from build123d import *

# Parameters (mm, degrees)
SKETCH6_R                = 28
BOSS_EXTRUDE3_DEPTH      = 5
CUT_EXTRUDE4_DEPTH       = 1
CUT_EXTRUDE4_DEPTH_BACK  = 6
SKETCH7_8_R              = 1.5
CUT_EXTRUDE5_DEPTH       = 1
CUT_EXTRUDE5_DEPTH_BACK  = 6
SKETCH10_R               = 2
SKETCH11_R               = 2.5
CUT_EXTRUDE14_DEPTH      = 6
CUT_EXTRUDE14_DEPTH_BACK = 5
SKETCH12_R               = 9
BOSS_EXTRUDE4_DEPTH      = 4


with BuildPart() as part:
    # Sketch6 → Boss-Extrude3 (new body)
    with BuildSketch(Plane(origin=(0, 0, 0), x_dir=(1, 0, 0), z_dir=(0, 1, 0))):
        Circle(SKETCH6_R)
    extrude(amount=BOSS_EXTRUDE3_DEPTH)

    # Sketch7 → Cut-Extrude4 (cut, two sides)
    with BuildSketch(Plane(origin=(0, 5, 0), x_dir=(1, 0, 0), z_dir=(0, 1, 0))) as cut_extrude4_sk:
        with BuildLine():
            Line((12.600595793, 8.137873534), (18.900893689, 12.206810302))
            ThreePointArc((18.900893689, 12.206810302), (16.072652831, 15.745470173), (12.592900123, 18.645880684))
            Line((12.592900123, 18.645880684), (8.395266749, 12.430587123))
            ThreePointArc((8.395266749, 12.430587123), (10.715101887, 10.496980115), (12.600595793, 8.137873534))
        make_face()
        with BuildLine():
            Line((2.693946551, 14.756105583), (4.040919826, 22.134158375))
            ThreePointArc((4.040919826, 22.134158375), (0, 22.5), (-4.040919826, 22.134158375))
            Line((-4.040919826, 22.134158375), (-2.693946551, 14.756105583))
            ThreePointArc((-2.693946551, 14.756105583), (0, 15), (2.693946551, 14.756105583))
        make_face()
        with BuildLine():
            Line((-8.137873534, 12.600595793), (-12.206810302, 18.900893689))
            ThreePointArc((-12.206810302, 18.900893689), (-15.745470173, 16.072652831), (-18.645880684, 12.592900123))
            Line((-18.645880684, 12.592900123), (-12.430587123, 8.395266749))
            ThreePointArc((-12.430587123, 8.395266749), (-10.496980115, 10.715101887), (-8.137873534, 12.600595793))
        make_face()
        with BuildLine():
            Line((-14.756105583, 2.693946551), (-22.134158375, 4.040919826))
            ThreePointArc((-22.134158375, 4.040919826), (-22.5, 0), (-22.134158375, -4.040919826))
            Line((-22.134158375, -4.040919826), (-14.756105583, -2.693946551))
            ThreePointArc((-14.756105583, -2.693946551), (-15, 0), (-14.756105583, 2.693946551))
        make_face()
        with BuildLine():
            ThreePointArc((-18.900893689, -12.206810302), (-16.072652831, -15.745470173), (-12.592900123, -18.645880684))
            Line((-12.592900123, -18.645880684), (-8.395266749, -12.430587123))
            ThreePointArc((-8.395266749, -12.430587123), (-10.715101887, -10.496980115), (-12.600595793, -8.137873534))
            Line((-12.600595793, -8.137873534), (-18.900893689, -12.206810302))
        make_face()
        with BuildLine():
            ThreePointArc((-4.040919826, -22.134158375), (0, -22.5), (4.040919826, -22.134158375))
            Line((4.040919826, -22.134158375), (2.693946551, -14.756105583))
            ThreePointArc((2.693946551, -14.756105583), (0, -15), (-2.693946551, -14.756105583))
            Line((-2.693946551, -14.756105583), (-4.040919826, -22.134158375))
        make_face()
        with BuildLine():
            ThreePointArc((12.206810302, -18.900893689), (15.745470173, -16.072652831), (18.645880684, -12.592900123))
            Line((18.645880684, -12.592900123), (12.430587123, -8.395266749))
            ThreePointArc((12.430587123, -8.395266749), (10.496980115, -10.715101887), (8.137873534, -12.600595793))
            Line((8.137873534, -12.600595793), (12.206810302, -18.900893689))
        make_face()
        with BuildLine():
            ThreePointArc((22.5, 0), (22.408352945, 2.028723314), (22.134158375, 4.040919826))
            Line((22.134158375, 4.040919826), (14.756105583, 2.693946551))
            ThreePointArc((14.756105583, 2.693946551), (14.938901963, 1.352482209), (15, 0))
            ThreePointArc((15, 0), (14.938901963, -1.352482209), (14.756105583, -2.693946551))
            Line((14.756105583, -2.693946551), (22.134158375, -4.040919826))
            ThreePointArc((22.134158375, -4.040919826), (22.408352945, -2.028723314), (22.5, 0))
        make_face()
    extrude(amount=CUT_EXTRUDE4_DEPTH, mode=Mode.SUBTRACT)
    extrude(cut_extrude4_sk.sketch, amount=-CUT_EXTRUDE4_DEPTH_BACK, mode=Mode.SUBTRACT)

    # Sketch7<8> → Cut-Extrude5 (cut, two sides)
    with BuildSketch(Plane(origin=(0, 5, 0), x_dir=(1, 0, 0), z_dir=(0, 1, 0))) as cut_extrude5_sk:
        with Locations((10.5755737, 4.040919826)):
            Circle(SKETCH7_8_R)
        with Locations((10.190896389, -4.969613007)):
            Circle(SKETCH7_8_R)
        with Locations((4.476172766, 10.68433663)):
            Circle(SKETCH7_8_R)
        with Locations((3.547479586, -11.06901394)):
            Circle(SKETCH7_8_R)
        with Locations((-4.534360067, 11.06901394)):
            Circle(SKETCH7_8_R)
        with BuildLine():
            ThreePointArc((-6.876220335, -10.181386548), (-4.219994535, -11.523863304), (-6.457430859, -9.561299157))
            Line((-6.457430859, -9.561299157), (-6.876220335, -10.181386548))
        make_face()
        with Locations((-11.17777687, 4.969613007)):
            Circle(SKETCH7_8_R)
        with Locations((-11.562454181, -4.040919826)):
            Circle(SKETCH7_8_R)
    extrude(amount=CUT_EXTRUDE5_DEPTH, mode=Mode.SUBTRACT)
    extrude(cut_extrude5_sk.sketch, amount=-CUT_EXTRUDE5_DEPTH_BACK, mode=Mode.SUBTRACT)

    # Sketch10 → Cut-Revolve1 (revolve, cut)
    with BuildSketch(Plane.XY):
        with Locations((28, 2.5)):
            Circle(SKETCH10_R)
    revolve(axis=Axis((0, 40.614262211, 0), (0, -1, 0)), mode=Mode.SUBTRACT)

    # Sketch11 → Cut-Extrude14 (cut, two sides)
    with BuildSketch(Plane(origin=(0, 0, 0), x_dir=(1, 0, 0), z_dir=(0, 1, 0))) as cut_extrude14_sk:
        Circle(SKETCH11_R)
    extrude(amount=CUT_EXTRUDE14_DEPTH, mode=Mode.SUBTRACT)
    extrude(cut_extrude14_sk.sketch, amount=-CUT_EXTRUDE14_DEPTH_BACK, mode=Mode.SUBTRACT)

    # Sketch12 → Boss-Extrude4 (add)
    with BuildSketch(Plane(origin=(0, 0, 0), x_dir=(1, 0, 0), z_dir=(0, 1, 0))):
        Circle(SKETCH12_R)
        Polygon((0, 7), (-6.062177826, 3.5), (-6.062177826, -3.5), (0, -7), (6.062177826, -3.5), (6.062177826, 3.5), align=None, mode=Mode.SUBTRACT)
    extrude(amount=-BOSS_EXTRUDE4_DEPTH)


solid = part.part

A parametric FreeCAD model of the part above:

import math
import FreeCAD as App
import Part
import Sketcher
from FreeCAD import Vector
Q = App.Units.Quantity

doc = App.newDocument("Part")
body = doc.addObject("PartDesign::Body", "Body")

sketch1 = body.newObject("Sketcher::SketchObject", "Sketch")
sketch1.AttachmentSupport = (doc.getObject("XZ_Plane"), [""])
sketch1.MapMode = "FlatFace"
sketch1.addGeometry(Part.Circle(Vector(0, 0, 0), Vector(0, 0, 1), 28), False)
sketch1.addConstraint([
    Sketcher.Constraint("Coincident", 0, 3, -1, 1),
    Sketcher.Constraint("Diameter", 0, Q("56 mm")),
])
pad1 = body.newObject("PartDesign::Pad", "Pad")
pad1.Profile = sketch1
pad1.Length = 5
pad1.Reversed = True

sketch2 = body.newObject("Sketcher::SketchObject", "Sketch001")
sketch2.AttachmentSupport = (doc.getObject("XZ_Plane"), [""])
sketch2.MapMode = "FlatFace"
sketch2.AttachmentOffset = App.Placement(Vector(0, 0, -5), App.Rotation())
sketch2.addGeometry([
    Part.LineSegment(Vector(12.600596, -8.137874, 0), Vector(18.900894, -12.20681, 0)),
    Part.ArcOfCircle(Part.Circle(Vector(0, 0, 0), Vector(0, 0, 1), 22.5), math.radians(-55.966022), math.radians(-32.855686)),
    Part.LineSegment(Vector(12.5929, -18.645881, 0), Vector(8.395267, -12.430587, 0)),
    Part.ArcOfCircle(Part.Circle(Vector(0, 0, 0), Vector(0, 0, 1), 15), math.radians(-55.966022), math.radians(-32.855686)),
    Part.LineSegment(Vector(2.693947, -14.756106, 0), Vector(4.04092, -22.134158, 0)),
    Part.ArcOfCircle(Part.Circle(Vector(0, 0, 0), Vector(0, 0, 1), 22.5), math.radians(-100.346254), math.radians(-79.653746)),
    Part.LineSegment(Vector(-4.04092, -22.134158, 0), Vector(-2.693947, -14.756106, 0)),
    Part.ArcOfCircle(Part.Circle(Vector(0, 0, 0), Vector(0, 0, 1), 15), math.radians(-100.346254), math.radians(-79.653746)),
    Part.LineSegment(Vector(-8.137874, -12.600596, 0), Vector(-12.20681, -18.900894, 0)),
    Part.ArcOfCircle(Part.Circle(Vector(0, 0, 0), Vector(0, 0, 1), 22.5), math.radians(-145.966022), math.radians(-122.855686)),
    Part.LineSegment(Vector(-18.645881, -12.5929, 0), Vector(-12.430587, -8.395267, 0)),
    Part.ArcOfCircle(Part.Circle(Vector(0, 0, 0), Vector(0, 0, 1), 15), math.radians(-145.966022), math.radians(-122.855686)),
    Part.LineSegment(Vector(-14.756106, -2.693947, 0), Vector(-22.134158, -4.04092, 0)),
    Part.ArcOfCircle(Part.Circle(Vector(0, 0, 0), Vector(0, 0, 1), 22.5), math.radians(169.653746), math.radians(190.346254)),
    Part.LineSegment(Vector(-22.134158, 4.04092, 0), Vector(-14.756106, 2.693947, 0)),
    Part.ArcOfCircle(Part.Circle(Vector(0, 0, 0), Vector(0, 0, 1), 15), math.radians(169.653746), math.radians(190.346254)),
    Part.ArcOfCircle(Part.Circle(Vector(0, 0, 0), Vector(0, 0, 1), 22.5), math.radians(124.033978), math.radians(147.144314)),
    Part.LineSegment(Vector(-12.5929, 18.645881, 0), Vector(-8.395267, 12.430587, 0)),
    Part.ArcOfCircle(Part.Circle(Vector(0, 0, 0), Vector(0, 0, 1), 15), math.radians(124.033978), math.radians(147.144314)),
    Part.LineSegment(Vector(-12.600596, 8.137874, 0), Vector(-18.900894, 12.20681, 0)),
    Part.ArcOfCircle(Part.Circle(Vector(0, 0, 0), Vector(0, 0, 1), 22.5), math.radians(79.653746), math.radians(100.346254)),
    Part.LineSegment(Vector(4.04092, 22.134158, 0), Vector(2.693947, 14.756106, 0)),
    Part.ArcOfCircle(Part.Circle(Vector(0, 0, 0), Vector(0, 0, 1), 15), math.radians(79.653746), math.radians(100.346254)),
    Part.LineSegment(Vector(-2.693947, 14.756106, 0), Vector(-4.04092, 22.134158, 0)),
    Part.ArcOfCircle(Part.Circle(Vector(0, 0, 0), Vector(0, 0, 1), 22.5), math.radians(34.033978), math.radians(57.144314)),
    Part.LineSegment(Vector(18.645881, 12.5929, 0), Vector(12.430587, 8.395267, 0)),
    Part.ArcOfCircle(Part.Circle(Vector(0, 0, 0), Vector(0, 0, 1), 15), math.radians(34.033978), math.radians(57.144314)),
    Part.LineSegment(Vector(8.137874, 12.600596, 0), Vector(12.20681, 18.900894, 0)),
    Part.ArcOfCircle(Part.Circle(Vector(0, 0, 0), Vector(0, 0, 1), 22.5), math.radians(-10.346254), math.radians(0)),
    Part.LineSegment(Vector(22.134158, -4.04092, 0), Vector(14.756106, -2.693947, 0)),
    Part.ArcOfCircle(Part.Circle(Vector(0, 0, 0), Vector(0, 0, 1), 15), math.radians(-10.346254), math.radians(0)),
    Part.ArcOfCircle(Part.Circle(Vector(0, 0, 0), Vector(0, 0, 1), 15), math.radians(0), math.radians(10.346254)),
    Part.LineSegment(Vector(14.756106, 2.693947, 0), Vector(22.134158, 4.04092, 0)),
    Part.ArcOfCircle(Part.Circle(Vector(0, 0, 0), Vector(0, 0, 1), 22.5), math.radians(0), math.radians(10.346254)),
], False)
sketch2.addConstraint([
    Sketcher.Constraint("Coincident", 0, 2, 1, 2),
    Sketcher.Constraint("Coincident", 1, 1, 2, 1),
    Sketcher.Constraint("Coincident", 2, 2, 3, 1),
    Sketcher.Constraint("Coincident", 3, 2, 0, 1),
    Sketcher.Constraint("Coincident", 4, 2, 5, 2),
    Sketcher.Constraint("Coincident", 5, 1, 6, 1),
    Sketcher.Constraint("Coincident", 6, 2, 7, 1),
    Sketcher.Constraint("Coincident", 7, 2, 4, 1),
    Sketcher.Constraint("Coincident", 8, 2, 9, 2),
    Sketcher.Constraint("Coincident", 9, 1, 10, 1),
    Sketcher.Constraint("Coincident", 10, 2, 11, 1),
    Sketcher.Constraint("Coincident", 11, 2, 8, 1),
    Sketcher.Constraint("Coincident", 12, 2, 13, 2),
    Sketcher.Constraint("Coincident", 13, 1, 14, 1),
    Sketcher.Constraint("Coincident", 14, 2, 15, 1),
    Sketcher.Constraint("Coincident", 15, 2, 12, 1),
    Sketcher.Constraint("Coincident", 16, 1, 17, 1),
    Sketcher.Constraint("Coincident", 17, 2, 18, 1),
    Sketcher.Constraint("Coincident", 18, 2, 19, 1),
    Sketcher.Constraint("Coincident", 19, 2, 16, 2),
    Sketcher.Constraint("Coincident", 20, 1, 21, 1),
    Sketcher.Constraint("Coincident", 21, 2, 22, 1),
    Sketcher.Constraint("Coincident", 22, 2, 23, 1),
    Sketcher.Constraint("Coincident", 23, 2, 20, 2),
    Sketcher.Constraint("Coincident", 24, 1, 25, 1),
    Sketcher.Constraint("Coincident", 25, 2, 26, 1),
    Sketcher.Constraint("Coincident", 26, 2, 27, 1),
    Sketcher.Constraint("Coincident", 27, 2, 24, 2),
    Sketcher.Constraint("Coincident", 28, 1, 29, 1),
    Sketcher.Constraint("Coincident", 29, 2, 30, 1),
    Sketcher.Constraint("Tangent", 30, 2, 31, 1),
    Sketcher.Constraint("Coincident", 31, 2, 32, 1),
    Sketcher.Constraint("Coincident", 32, 2, 33, 2),
    Sketcher.Constraint("Tangent", 33, 1, 28, 2),
    Sketcher.Constraint("Coincident", 1, 3, -1, 1),
    Sketcher.Constraint("Coincident", 3, 3, -1, 1),
    Sketcher.Constraint("Coincident", 5, 3, -1, 1),
    Sketcher.Constraint("Coincident", 7, 3, -1, 1),
    Sketcher.Constraint("Coincident", 9, 3, -1, 1),
    Sketcher.Constraint("Coincident", 11, 3, -1, 1),
    Sketcher.Constraint("Coincident", 13, 3, -1, 1),
    Sketcher.Constraint("Coincident", 15, 3, -1, 1),
    Sketcher.Constraint("Coincident", 16, 3, -1, 1),
    Sketcher.Constraint("Coincident", 18, 3, -1, 1),
    Sketcher.Constraint("Coincident", 20, 3, -1, 1),
    Sketcher.Constraint("Coincident", 22, 3, -1, 1),
    Sketcher.Constraint("Coincident", 24, 3, -1, 1),
    Sketcher.Constraint("Coincident", 26, 3, -1, 1),
    Sketcher.Constraint("Coincident", 28, 3, -1, 1),
    Sketcher.Constraint("Coincident", 30, 3, -1, 1),
    Sketcher.Constraint("Equal", 1, 5),
    Sketcher.Constraint("Equal", 3, 7),
    Sketcher.Constraint("Equal", 5, 9),
    Sketcher.Constraint("Equal", 7, 11),
    Sketcher.Constraint("Equal", 9, 13),
    Sketcher.Constraint("Equal", 11, 15),
    Sketcher.Constraint("Equal", 13, 16),
    Sketcher.Constraint("Equal", 15, 18),
    Sketcher.Constraint("Equal", 16, 20),
    Sketcher.Constraint("Equal", 18, 22),
    Sketcher.Constraint("Equal", 20, 24),
    Sketcher.Constraint("Equal", 22, 26),
    Sketcher.Constraint("Equal", 24, 28),
    Sketcher.Constraint("Equal", 26, 30),
    Sketcher.Constraint("Equal", 30, 31),
    Sketcher.Constraint("Equal", 28, 33),
    Sketcher.Constraint("PointOnObject", 30, 2, -1),
    Sketcher.Constraint("PointOnObject", 33, 1, -1),
    Sketcher.Constraint("Perpendicular", 0, 8),
    Sketcher.Constraint("Perpendicular", 2, 10),
    Sketcher.Constraint("Perpendicular", 4, 12),
    Sketcher.Constraint("Perpendicular", 6, 14),
    Sketcher.Constraint("Perpendicular", 10, 17),
    Sketcher.Constraint("Perpendicular", 8, 19),
    Sketcher.Constraint("Perpendicular", 14, 21),
    Sketcher.Constraint("Perpendicular", 12, 23),
    Sketcher.Constraint("Perpendicular", 17, 25),
    Sketcher.Constraint("Perpendicular", 19, 27),
    Sketcher.Constraint("Perpendicular", 21, 29),
    Sketcher.Constraint("Perpendicular", 23, 32),
    Sketcher.Constraint("Horizontal", 4, 2, 5, 1),
    Sketcher.Constraint("Horizontal", 6, 2, 7, 2),
    Sketcher.Constraint("Horizontal", 21, 2, 22, 2),
    Sketcher.Constraint("Horizontal", 12, 2, 28, 1),
    Sketcher.Constraint("Horizontal", 14, 2, 31, 2),
    Sketcher.Constraint("Vertical", 12, 2, 13, 1),
    Sketcher.Constraint("Vertical", 4, 2, 20, 1),
    Sketcher.Constraint("Radius", 3, Q("15 mm")),
    Sketcher.Constraint("Radius", 1, Q("22.5 mm")),
    Sketcher.Constraint("DistanceX", -1, 1, 1, 1, Q("12.5929 mm")),
    Sketcher.Constraint("DistanceY", 9, 1, -1, 1, Q("12.5929 mm")),
    Sketcher.Constraint("DistanceX", 16, 1, -1, 1, Q("12.5929 mm")),
    Sketcher.Constraint("DistanceY", -1, 1, 24, 1, Q("12.5929 mm")),
    Sketcher.Constraint("DistanceY", 0, 2, -1, 1, Q("12.20681 mm")),
    Sketcher.Constraint("DistanceX", -1, 1, 4, 2, Q("4.04092 mm")),
    Sketcher.Constraint("DistanceX", 8, 2, -1, 1, Q("12.20681 mm")),
    Sketcher.Constraint("DistanceX", 12, 2, -1, 1, Q("22.134158 mm")),
    Sketcher.Constraint("DistanceY", -1, 1, 19, 2, Q("12.20681 mm")),
    Sketcher.Constraint("DistanceX", -1, 1, 27, 2, Q("12.20681 mm")),
    Sketcher.Constraint("DistanceX", 2, 2, 3, 2, Q("4.205329 mm")),
    Sketcher.Constraint("DistanceY", 4, 2, 2, 2, Q("9.703571 mm")),
    Sketcher.Constraint("DistanceY", 6, 2, 2, 2, Q("2.325518 mm")),
])
pocket1 = body.newObject("PartDesign::Pocket", "Pocket")
pocket1.Profile = sketch2
pocket1.Type = "ThroughAll"
pocket1.Midplane = True

sketch3 = body.newObject("Sketcher::SketchObject", "Sketch002")
sketch3.AttachmentSupport = (doc.getObject("XZ_Plane"), [""])
sketch3.MapMode = "FlatFace"
sketch3.AttachmentOffset = App.Placement(Vector(0, 0, -5), App.Rotation())
sketch3.addGeometry([
    Part.Circle(Vector(10.575574, -4.04092, 0), Vector(0, 0, 1), 1.5),
    Part.Circle(Vector(10.190896, 4.969613, 0), Vector(0, 0, 1), 1.5),
    Part.Circle(Vector(4.476173, -10.684337, 0), Vector(0, 0, 1), 1.5),
    Part.Circle(Vector(3.54748, 11.069014, 0), Vector(0, 0, 1), 1.5),
    Part.Circle(Vector(-4.53436, -11.069014, 0), Vector(0, 0, 1), 1.5),
    Part.ArcOfCircle(Part.Circle(Vector(-5.463053, 10.684337, 0), Vector(0, 0, 1), 1.5), math.radians(-131.522829), math.radians(199.590785)),
    Part.LineSegment(Vector(-6.457431, 9.561299, 0), Vector(-6.87622, 10.181387, 0)),
    Part.Circle(Vector(-11.177777, -4.969613, 0), Vector(0, 0, 1), 1.5),
    Part.Circle(Vector(-11.562454, 4.04092, 0), Vector(0, 0, 1), 1.5),
], False)
sketch3.addConstraint([
    Sketcher.Constraint("Coincident", 5, 1, 6, 1),
    Sketcher.Constraint("Coincident", 6, 2, 5, 2),
    Sketcher.Constraint("Equal", 0, 1),
    Sketcher.Constraint("Equal", 1, 2),
    Sketcher.Constraint("Equal", 2, 3),
    Sketcher.Constraint("Equal", 3, 4),
    Sketcher.Constraint("Equal", 4, 5),
    Sketcher.Constraint("Equal", 5, 7),
    Sketcher.Constraint("Equal", 7, 8),
    Sketcher.Constraint("Diameter", 0, Q("3 mm")),
    Sketcher.Constraint("DistanceY", 7, 3, 6, 2, Q("15.151 mm")),
    Sketcher.Constraint("DistanceY", -1, 1, 5, 1, Q("9.561299 mm")),
    Sketcher.Constraint("DistanceX", 2, 3, 0, 3, Q("6.099401 mm")),
    Sketcher.Constraint("DistanceY", 1, 3, 3, 3, Q("6.099401 mm")),
    Sketcher.Constraint("DistanceY", 4, 3, 7, 3, Q("6.099401 mm")),
    Sketcher.Constraint("DistanceX", 8, 3, 5, 3, Q("6.099401 mm")),
    Sketcher.Constraint("DistanceX", 6, 2, 3, 3, Q("10.4237 mm")),
    Sketcher.Constraint("Distance", 6, Q("0.74826 mm")),
    Sketcher.Constraint("DistanceY", 0, 3, -1, 1, Q("4.04092 mm")),
    Sketcher.Constraint("DistanceX", -1, 1, 3, 3, Q("3.54748 mm")),
    Sketcher.Constraint("DistanceX", 4, 3, -1, 1, Q("4.53436 mm")),
    Sketcher.Constraint("DistanceY", -1, 1, 8, 3, Q("4.04092 mm")),
    Sketcher.Constraint("DistanceX", 5, 1, -1, 1, Q("6.457431 mm")),
    Sketcher.Constraint("DistanceY", 2, 3, 1, 3, Q("15.65395 mm")),
    Sketcher.Constraint("DistanceX", 5, 3, 1, 3, Q("15.65395 mm")),
    Sketcher.Constraint("DistanceX", 7, 3, 2, 3, Q("15.65395 mm")),
    Sketcher.Constraint("DistanceX", -1, 1, 0, 3, Q("10.575574 mm")),
    Sketcher.Constraint("DistanceY", -1, 1, 1, 3, Q("4.969613 mm")),
])
pocket2 = body.newObject("PartDesign::Pocket", "Pocket001")
pocket2.Profile = sketch3
pocket2.Type = "ThroughAll"
pocket2.Midplane = True

sketch4 = body.newObject("Sketcher::SketchObject", "Sketch003")
sketch4.AttachmentSupport = (doc.getObject("XY_Plane"), [""])
sketch4.MapMode = "FlatFace"
sketch4.addGeometry(Part.Circle(Vector(28, 2.5, 0), Vector(0, 0, 1), 2), False)
sketch4.addConstraint([
    Sketcher.Constraint("Diameter", 0, Q("4 mm")),
    Sketcher.Constraint("DistanceX", -1, 1, 0, 3, Q("28 mm")),
    Sketcher.Constraint("DistanceY", -1, 1, 0, 3, Q("2.5 mm")),
])
groove = body.newObject("PartDesign::Groove", "Groove")
groove.Profile = sketch4
groove.ReferenceAxis = (sketch4, ["V_Axis"])
groove.Angle = 360

sketch5 = body.newObject("Sketcher::SketchObject", "Sketch004")
sketch5.AttachmentSupport = (doc.getObject("XZ_Plane"), [""])
sketch5.MapMode = "FlatFace"
sketch5.addGeometry(Part.Circle(Vector(0, 0, 0), Vector(0, 0, 1), 2.5), False)
sketch5.addConstraint([
    Sketcher.Constraint("Coincident", 0, 3, -1, 1),
    Sketcher.Constraint("Diameter", 0, Q("5 mm")),
])
pocket3 = body.newObject("PartDesign::Pocket", "Pocket002")
pocket3.Profile = sketch5
pocket3.Type = "ThroughAll"
pocket3.Midplane = True

sketch6 = body.newObject("Sketcher::SketchObject", "Sketch005")
sketch6.AttachmentSupport = (doc.getObject("XZ_Plane"), [""])
sketch6.MapMode = "FlatFace"
sketch6.addGeometry([
    Part.Circle(Vector(0, 0, 0), Vector(0, 0, 1), 9),
    Part.LineSegment(Vector(-6.062178, -3.5, 0), Vector(0, -7, 0)),
    Part.LineSegment(Vector(0, -7, 0), Vector(6.062178, -3.5, 0)),
    Part.LineSegment(Vector(6.062178, -3.5, 0), Vector(6.062178, 3.5, 0)),
    Part.LineSegment(Vector(6.062178, 3.5, 0), Vector(0, 7, 0)),
    Part.LineSegment(Vector(0, 7, 0), Vector(-6.062178, 3.5, 0)),
    Part.LineSegment(Vector(-6.062178, 3.5, 0), Vector(-6.062178, -3.5, 0)),
], False)
sketch6.addConstraint([
    Sketcher.Constraint("Coincident", 1, 2, 2, 1),
    Sketcher.Constraint("Coincident", 2, 2, 3, 1),
    Sketcher.Constraint("Coincident", 3, 2, 4, 1),
    Sketcher.Constraint("Coincident", 4, 2, 5, 1),
    Sketcher.Constraint("Coincident", 5, 2, 6, 1),
    Sketcher.Constraint("Coincident", 6, 2, 1, 1),
    Sketcher.Constraint("Vertical", 3),
    Sketcher.Constraint("Vertical", 6),
    Sketcher.Constraint("Coincident", 0, 3, -1, 1),
    Sketcher.Constraint("Symmetric", 1, 2, 4, 2, -1, 1),
    Sketcher.Constraint("Symmetric", 2, 2, 5, 2, -1, 1),
    Sketcher.Constraint("PointOnObject", 1, 2, -2),
    Sketcher.Constraint("Parallel", 1, 4),
    Sketcher.Constraint("Horizontal", 3, 2, 5, 2),
    Sketcher.Constraint("Diameter", 0, Q("18 mm")),
    Sketcher.Constraint("DistanceY", 3, 1, 3, 2, Q("7 mm")),
    Sketcher.Constraint("Angle", 1, Q("-30 deg")),
    Sketcher.Constraint("Distance", 1, Q("7 mm")),
])
pad2 = body.newObject("PartDesign::Pad", "Pad001")
pad2.Profile = sketch6
pad2.Length = 4

doc.recompute()
